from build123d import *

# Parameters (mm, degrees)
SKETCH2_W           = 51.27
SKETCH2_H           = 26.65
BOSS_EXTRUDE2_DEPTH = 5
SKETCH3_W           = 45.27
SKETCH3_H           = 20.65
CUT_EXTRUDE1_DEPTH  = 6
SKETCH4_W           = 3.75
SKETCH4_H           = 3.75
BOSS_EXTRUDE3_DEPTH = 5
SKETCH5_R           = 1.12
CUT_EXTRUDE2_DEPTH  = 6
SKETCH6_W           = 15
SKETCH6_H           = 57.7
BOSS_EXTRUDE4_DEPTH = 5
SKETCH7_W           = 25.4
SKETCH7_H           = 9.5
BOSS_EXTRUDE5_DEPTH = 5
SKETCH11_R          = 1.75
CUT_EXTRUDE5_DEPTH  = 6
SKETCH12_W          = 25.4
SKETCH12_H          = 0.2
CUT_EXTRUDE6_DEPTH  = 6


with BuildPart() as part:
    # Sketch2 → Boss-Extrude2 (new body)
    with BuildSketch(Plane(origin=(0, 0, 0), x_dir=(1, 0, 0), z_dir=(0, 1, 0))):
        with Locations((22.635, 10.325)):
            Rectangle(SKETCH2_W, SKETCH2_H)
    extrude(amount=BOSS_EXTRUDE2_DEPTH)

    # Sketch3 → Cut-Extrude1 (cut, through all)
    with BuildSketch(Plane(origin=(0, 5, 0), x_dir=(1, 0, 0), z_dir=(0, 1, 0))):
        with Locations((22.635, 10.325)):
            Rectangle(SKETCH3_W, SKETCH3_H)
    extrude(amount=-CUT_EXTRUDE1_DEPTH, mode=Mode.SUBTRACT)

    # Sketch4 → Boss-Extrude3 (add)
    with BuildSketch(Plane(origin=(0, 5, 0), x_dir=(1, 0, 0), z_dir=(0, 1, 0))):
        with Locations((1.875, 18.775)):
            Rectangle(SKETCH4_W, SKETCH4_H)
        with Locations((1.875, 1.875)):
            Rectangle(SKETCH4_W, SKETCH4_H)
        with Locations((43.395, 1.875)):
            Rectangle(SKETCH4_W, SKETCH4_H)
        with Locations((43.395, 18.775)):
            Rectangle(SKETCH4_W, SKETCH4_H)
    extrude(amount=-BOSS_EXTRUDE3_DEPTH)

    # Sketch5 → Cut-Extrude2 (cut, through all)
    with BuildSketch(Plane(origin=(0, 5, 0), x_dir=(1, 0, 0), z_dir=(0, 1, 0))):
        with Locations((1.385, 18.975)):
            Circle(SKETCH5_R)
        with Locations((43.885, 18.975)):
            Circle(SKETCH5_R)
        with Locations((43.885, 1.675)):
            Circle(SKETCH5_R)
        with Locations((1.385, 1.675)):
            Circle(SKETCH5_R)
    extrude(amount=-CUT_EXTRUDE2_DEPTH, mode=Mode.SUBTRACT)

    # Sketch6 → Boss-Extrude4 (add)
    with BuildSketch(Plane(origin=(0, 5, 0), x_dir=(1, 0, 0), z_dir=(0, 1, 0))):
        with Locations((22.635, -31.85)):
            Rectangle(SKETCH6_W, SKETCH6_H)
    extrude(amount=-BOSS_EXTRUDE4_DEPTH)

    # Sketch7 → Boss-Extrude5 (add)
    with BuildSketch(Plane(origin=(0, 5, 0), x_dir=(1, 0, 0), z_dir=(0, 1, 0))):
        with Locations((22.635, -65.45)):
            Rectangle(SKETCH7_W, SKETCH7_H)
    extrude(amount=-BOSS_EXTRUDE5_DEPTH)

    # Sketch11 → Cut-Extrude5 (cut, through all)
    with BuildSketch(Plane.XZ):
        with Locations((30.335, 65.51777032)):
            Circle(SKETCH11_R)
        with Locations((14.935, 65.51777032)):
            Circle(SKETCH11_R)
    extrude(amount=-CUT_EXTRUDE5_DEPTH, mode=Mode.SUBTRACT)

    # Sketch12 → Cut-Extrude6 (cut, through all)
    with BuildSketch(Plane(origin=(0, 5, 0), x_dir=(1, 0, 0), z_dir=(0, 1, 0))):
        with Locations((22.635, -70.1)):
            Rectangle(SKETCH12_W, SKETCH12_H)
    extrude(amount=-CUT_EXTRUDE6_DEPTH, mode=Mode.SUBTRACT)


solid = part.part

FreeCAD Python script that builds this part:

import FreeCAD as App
import Part
import Sketcher

doc = App.newDocument("Part")
params = doc.addObject("Spreadsheet::Sheet", "Params")
for row, (alias, value) in enumerate([
    ("sketch1_width", "51.27 mm"),
    ("sketch1_height", "26.65 mm"),
    ("pad1_length", "5 mm"),
    ("sketch2_width", "45.27 mm"),
    ("sketch2_height", "20.65 mm"),
    ("sketch3_width", "3.75 mm"),
    ("pad2_length", "5 mm"),
    ("sketch4_diameter", "2.24 mm"),
    ("sketch5_width", "15 mm"),
    ("sketch5_height", "57.7 mm"),
    ("pad3_length", "5 mm"),
    ("sketch6_width", "25.4 mm"),
    ("sketch6_height", "9.5 mm"),
    ("pad4_length", "5 mm"),
    ("sketch7_diameter", "3.5 mm"),
    ("sketch8_width", "25.4 mm"),
    ("sketch8_height", "0.2 mm"),
], start=1):
    params.set(f"A{row}", alias)
    params.set(f"B{row}", "=" + value)
    params.setAlias(f"B{row}", alias)

body = doc.addObject("PartDesign::Body", "Body")

# Sketch on XZ plane
sketch1 = doc.addObject("Sketcher::SketchObject", "Sketch")
body.addObject(sketch1)
sketch1.AttachmentSupport = (doc.XZ_Plane, [""])
sketch1.MapMode = "FlatFace"
sketch1.addGeometry([
    Part.LineSegment(App.Vector(-3, -23.65, 0), App.Vector(-3, 3, 0)),
    Part.LineSegment(App.Vector(-3, 3, 0), App.Vector(48.27, 3, 0)),
    Part.LineSegment(App.Vector(48.27, 3, 0), App.Vector(48.27, -23.65, 0)),
    Part.LineSegment(App.Vector(48.27, -23.65, 0), App.Vector(-3, -23.65, 0)),
], False)
sketch1.addConstraint([
    Sketcher.Constraint("Coincident", 0, 2, 1, 1),
    Sketcher.Constraint("Coincident", 1, 2, 2, 1),
    Sketcher.Constraint("Coincident", 2, 2, 3, 1),
    Sketcher.Constraint("Coincident", 3, 2, 0, 1),
    Sketcher.Constraint("Vertical", 0),
    Sketcher.Constraint("Horizontal", 1),
    Sketcher.Constraint("Vertical", 2),
    Sketcher.Constraint("Horizontal", 3),
    Sketcher.Constraint("DistanceX", 0, 2, -1, 1, 3.0),
    Sketcher.Constraint("DistanceY", -1, 1, 0, 2, 3.0),
    Sketcher.Constraint("DistanceX", 1, 1, 1, 2, 51.27),
    Sketcher.Constraint("DistanceY", 0, 1, 0, 2, 26.65),
])
sketch1.setExpression("Constraints[10]", "Params.sketch1_width")
sketch1.setExpression("Constraints[11]", "Params.sketch1_height")
pad1 = doc.addObject("PartDesign::Pad", "Pad")
body.addObject(pad1)
pad1.Profile = sketch1
pad1.setExpression("Length", "Params.pad1_length")
pad1.Reversed = True

# Sketch on XZ plane
sketch2 = doc.addObject("Sketcher::SketchObject", "Sketch001")
body.addObject(sketch2)
sketch2.AttachmentSupport = (doc.XZ_Plane, [""])
sketch2.MapMode = "FlatFace"
sketch2.AttachmentOffset = App.Placement(App.Vector(0, 0, -5), App.Rotation())
sketch2.addGeometry([
    Part.LineSegment(App.Vector(0, -20.65, 0), App.Vector(0, 0, 0)),
    Part.LineSegment(App.Vector(0, 0, 0), App.Vector(45.27, 0, 0)),
    Part.LineSegment(App.Vector(45.27, 0, 0), App.Vector(45.27, -20.65, 0)),
    Part.LineSegment(App.Vector(45.27, -20.65, 0), App.Vector(0, -20.65, 0)),
], False)
sketch2.addConstraint([
    Sketcher.Constraint("Coincident", 0, 2, 1, 1),
    Sketcher.Constraint("Coincident", 1, 2, 2, 1),
    Sketcher.Constraint("Coincident", 2, 2, 3, 1),
    Sketcher.Constraint("Coincident", 3, 2, 0, 1),
    Sketcher.Constraint("Vertical", 0),
    Sketcher.Constraint("Horizontal", 1),
    Sketcher.Constraint("Vertical", 2),
    Sketcher.Constraint("Horizontal", 3),
    Sketcher.Constraint("Coincident", 0, 2, -1, 1),
    Sketcher.Constraint("DistanceX", 1, 1, 1, 2, 45.27),
    Sketcher.Constraint("DistanceY", 0, 1, 0, 2, 20.65),
])
sketch2.setExpression("Constraints[9]", "Params.sketch2_width")
sketch2.setExpression("Constraints[10]", "Params.sketch2_height")
pocket1 = doc.addObject("PartDesign::Pocket", "Pocket")
body.addObject(pocket1)
pocket1.Profile = sketch2
pocket1.Type = "ThroughAll"
pocket1.Reversed = True

# Sketch on XZ plane
sketch3 = doc.addObject("Sketcher::SketchObject", "Sketch002")
body.addObject(sketch3)
sketch3.AttachmentSupport = (doc.XZ_Plane, [""])
sketch3.MapMode = "FlatFace"
sketch3.AttachmentOffset = App.Placement(App.Vector(0, 0, -5), App.Rotation())
sketch3.addGeometry([
    Part.LineSegment(App.Vector(0, -20.65, 0), App.Vector(0, -16.9, 0)),  # 0
    Part.LineSegment(App.Vector(0, -16.9, 0), App.Vector(3.75, -16.9, 0)),  # 1
    Part.LineSegment(App.Vector(3.75, -16.9, 0), App.Vector(3.75, -20.65, 0)),  # 2
    Part.LineSegment(App.Vector(3.75, -20.65, 0), App.Vector(0, -20.65, 0)),  # 3
    Part.LineSegment(App.Vector(0, -3.75, 0), App.Vector(0, 0, 0)),  # 4
    Part.LineSegment(App.Vector(0, 0, 0), App.Vector(3.75, 0, 0)),  # 5
    Part.LineSegment(App.Vector(3.75, 0, 0), App.Vector(3.75, -3.75, 0)),  # 6
    Part.LineSegment(App.Vector(3.75, -3.75, 0), App.Vector(0, -3.75, 0)),  # 7
    Part.LineSegment(App.Vector(41.52, -3.75, 0), App.Vector(41.52, 0, 0)),  # 8
    Part.LineSegment(App.Vector(41.52, 0, 0), App.Vector(45.27, 0, 0)),  # 9
    Part.LineSegment(App.Vector(45.27, 0, 0), App.Vector(45.27, -3.75, 0)),  # 10
    Part.LineSegment(App.Vector(45.27, -3.75, 0), App.Vector(41.52, -3.75, 0)),  # 11
    Part.LineSegment(App.Vector(41.52, -20.65, 0), App.Vector(41.52, -16.9, 0)),  # 12
    Part.LineSegment(App.Vector(41.52, -16.9, 0), App.Vector(45.27, -16.9, 0)),  # 13
    Part.LineSegment(App.Vector(45.27, -16.9, 0), App.Vector(45.27, -20.65, 0)),  # 14
    Part.LineSegment(App.Vector(45.27, -20.65, 0), App.Vector(41.52, -20.65, 0)),  # 15
], False)
sketch3.addConstraint([
    Sketcher.Constraint("Coincident", 0, 2, 1, 1),
    Sketcher.Constraint("Coincident", 1, 2, 2, 1),
    Sketcher.Constraint("Coincident", 2, 2, 3, 1),
    Sketcher.Constraint("Coincident", 3, 2, 0, 1),
    Sketcher.Constraint("Coincident", 4, 2, 5, 1),
    Sketcher.Constraint("Coincident", 5, 2, 6, 1),
    Sketcher.Constraint("Coincident", 6, 2, 7, 1),
    Sketcher.Constraint("Coincident", 7, 2, 4, 1),
    Sketcher.Constraint("Coincident", 8, 2, 9, 1),
    Sketcher.Constraint("Coincident", 9, 2, 10, 1),
    Sketcher.Constraint("Coincident", 10, 2, 11, 1),
    Sketcher.Constraint("Coincident", 11, 2, 8, 1),
    Sketcher.Constraint("Coincident", 12, 2, 13, 1),
    Sketcher.Constraint("Coincident", 13, 2, 14, 1),
    Sketcher.Constraint("Coincident", 14, 2, 15, 1),
    Sketcher.Constraint("Coincident", 15, 2, 12, 1),
    Sketcher.Constraint("Vertical", 0),
    Sketcher.Constraint("Horizontal", 1),
    Sketcher.Constraint("Vertical", 2),
    Sketcher.Constraint("Horizontal", 3),
    Sketcher.Constraint("Vertical", 4),
    Sketcher.Constraint("Horizontal", 5),
    Sketcher.Constraint("Vertical", 6),
    Sketcher.Constraint("Horizontal", 7),
    Sketcher.Constraint("Vertical", 8),
    Sketcher.Constraint("Horizontal", 9),
    Sketcher.Constraint("Vertical", 10),
    Sketcher.Constraint("Horizontal", 11),
    Sketcher.Constraint("Vertical", 12),
    Sketcher.Constraint("Horizontal", 13),
    Sketcher.Constraint("Vertical", 14),
    Sketcher.Constraint("Horizontal", 15),
    Sketcher.Constraint("Coincident", 4, 2, -1, 1),
    Sketcher.Constraint("PointOnObject", 0, 2, -2),
    Sketcher.Constraint("PointOnObject", 8, 2, -1),
    Sketcher.Constraint("Horizontal", 7, 2, 10, 2),
    Sketcher.Constraint("Horizontal", 1, 2, 12, 2),
    Sketcher.Constraint("Horizontal", 3, 2, 14, 2),
    Sketcher.Constraint("Vertical", 2, 2, 5, 2),
    Sketcher.Constraint("Vertical", 11, 2, 12, 2),
    Sketcher.Constraint("Vertical", 10, 2, 13, 2),
    Sketcher.Constraint("Equal", 7, 9),
    Sketcher.Constraint("Equal", 15, 0),
    Sketcher.Constraint("Equal", 2, 4),
    Sketcher.Constraint("DistanceX", 1, 1, 1, 2, 3.75),
    Sketcher.Constraint("DistanceY", 0, 2, -1, 1, 16.9),
    Sketcher.Constraint("DistanceX", -1, 1, 8, 2, 41.52),
])
sketch3.setExpression("Constraints[44]", "Params.sketch3_width")
pad2 = doc.addObject("PartDesign::Pad", "Pad001")
body.addObject(pad2)
pad2.Profile = sketch3
pad2.setExpression("Length", "Params.pad2_length")

# Sketch on XZ plane
sketch4 = doc.addObject("Sketcher::SketchObject", "Sketch003")
body.addObject(sketch4)
sketch4.AttachmentSupport = (doc.XZ_Plane, [""])
sketch4.MapMode = "FlatFace"
sketch4.AttachmentOffset = App.Placement(App.Vector(0, 0, -5), App.Rotation())
sketch4.addGeometry([
    Part.Circle(App.Vector(1.385, -18.975, 0), App.Vector(0, 0, 1), 1.12),
    Part.Circle(App.Vector(43.885, -18.975, 0), App.Vector(0, 0, 1), 1.12),
    Part.Circle(App.Vector(43.885, -1.675, 0), App.Vector(0, 0, 1), 1.12),
    Part.Circle(App.Vector(1.385, -1.675, 0), App.Vector(0, 0, 1), 1.12),
], False)
sketch4.addConstraint([
    Sketcher.Constraint("Equal", 0, 1),
    Sketcher.Constraint("Equal", 1, 2),
    Sketcher.Constraint("Equal", 2, 3),
    Sketcher.Constraint("Horizontal", 0, 3, 1, 3),
    Sketcher.Constraint("Horizontal", 2, 3, 3, 3),
    Sketcher.Constraint("Vertical", 1, 3, 2, 3),
    Sketcher.Constraint("Vertical", 0, 3, 3, 3),
    Sketcher.Constraint("Diameter", 0, 2.24),
    Sketcher.Constraint("DistanceX", 0, 3, 1, 3, 42.5),
    Sketcher.Constraint("DistanceY", 1, 3, 2, 3, 17.3),
    Sketcher.Constraint("DistanceX", -1, 1, 0, 3, 1.385),
    Sketcher.Constraint("DistanceY", 0, 3, -1, 1, 18.975),
])
sketch4.setExpression("Constraints[7]", "Params.sketch4_diameter")
pocket2 = doc.addObject("PartDesign::Pocket", "Pocket001")
body.addObject(pocket2)
pocket2.Profile = sketch4
pocket2.Type = "ThroughAll"
pocket2.Reversed = True

# Sketch on XZ plane
sketch5 = doc.addObject("Sketcher::SketchObject", "Sketch004")
body.addObject(sketch5)
sketch5.AttachmentSupport = (doc.XZ_Plane, [""])
sketch5.MapMode = "FlatFace"
sketch5.AttachmentOffset = App.Placement(App.Vector(0, 0, -5), App.Rotation())
sketch5.addGeometry([
    Part.LineSegment(App.Vector(15.135, 3, 0), App.Vector(15.135, 60.7, 0)),
    Part.LineSegment(App.Vector(15.135, 60.7, 0), App.Vector(30.135, 60.7, 0)),
    Part.LineSegment(App.Vector(30.135, 60.7, 0), App.Vector(30.135, 3, 0)),
    Part.LineSegment(App.Vector(30.135, 3, 0), App.Vector(15.135, 3, 0)),
], False)
sketch5.addConstraint([
    Sketcher.Constraint("Coincident", 0, 2, 1, 1),
    Sketcher.Constraint("Coincident", 1, 2, 2, 1),
    Sketcher.Constraint("Coincident", 2, 2, 3, 1),
    Sketcher.Constraint("Coincident", 3, 2, 0, 1),
    Sketcher.Constraint("Vertical", 0),
    Sketcher.Constraint("Horizontal", 1),
    Sketcher.Constraint("Vertical", 2),
    Sketcher.Constraint("Horizontal", 3),
    Sketcher.Constraint("DistanceX", 1, 1, 1, 2, 15.0),
    Sketcher.Constraint("DistanceY", 0, 1, 0, 2, 57.7),
    Sketcher.Constraint("DistanceY", -1, 1, 2, 2, 3.0),
    Sketcher.Constraint("DistanceX", -1, 1, 0, 2, 15.135),
])
sketch5.setExpression("Constraints[8]", "Params.sketch5_width")
sketch5.setExpression("Constraints[9]", "Params.sketch5_height")
pad3 = doc.addObject("PartDesign::Pad", "Pad002")
body.addObject(pad3)
pad3.Profile = sketch5
pad3.setExpression("Length", "Params.pad3_length")

# Sketch on XZ plane
sketch6 = doc.addObject("Sketcher::SketchObject", "Sketch005")
body.addObject(sketch6)
sketch6.AttachmentSupport = (doc.XZ_Plane, [""])
sketch6.MapMode = "FlatFace"
sketch6.AttachmentOffset = App.Placement(App.Vector(0, 0, -5), App.Rotation())
sketch6.addGeometry([
    Part.LineSegment(App.Vector(9.935, 60.7, 0), App.Vector(9.935, 70.2, 0)),
    Part.LineSegment(App.Vector(9.935, 70.2, 0), App.Vector(35.335, 70.2, 0)),
    Part.LineSegment(App.Vector(35.335, 70.2, 0), App.Vector(35.335, 60.7, 0)),
    Part.LineSegment(App.Vector(35.335, 60.7, 0), App.Vector(9.935, 60.7, 0)),
], False)
sketch6.addConstraint([
    Sketcher.Constraint("Coincident", 0, 2, 1, 1),
    Sketcher.Constraint("Coincident", 1, 2, 2, 1),
    Sketcher.Constraint("Coincident", 2, 2, 3, 1),
    Sketcher.Constraint("Coincident", 3, 2, 0, 1),
    Sketcher.Constraint("Vertical", 0),
    Sketcher.Constraint("Horizontal", 1),
    Sketcher.Constraint("Vertical", 2),
    Sketcher.Constraint("Horizontal", 3),
    Sketcher.Constraint("DistanceX", 1, 1, 1, 2, 25.4),
    Sketcher.Constraint("DistanceY", 0, 1, 0, 2, 9.5),
    Sketcher.Constraint("DistanceY", -1, 1, 0, 2, 70.2),
    Sketcher.Constraint("DistanceX", -1, 1, 0, 2, 9.935),
])
sketch6.setExpression("Constraints[8]", "Params.sketch6_width")
sketch6.setExpression("Constraints[9]", "Params.sketch6_height")
pad4 = doc.addObject("PartDesign::Pad", "Pad003")
body.addObject(pad4)
pad4.Profile = sketch6
pad4.setExpression("Length", "Params.pad4_length")

# Sketch on XZ plane
sketch7 = doc.addObject("Sketcher::SketchObject", "Sketch006")
body.addObject(sketch7)
sketch7.AttachmentSupport = (doc.XZ_Plane, [""])
sketch7.MapMode = "FlatFace"
sketch7.addGeometry([
    Part.Circle(App.Vector(30.335, 65.51777, 0), App.Vector(0, 0, 1), 1.75),
    Part.Circle(App.Vector(14.935, 65.51777, 0), App.Vector(0, 0, 1), 1.75),
], False)
sketch7.addConstraint([
    Sketcher.Constraint("Equal", 0, 1),
    Sketcher.Constraint("Horizontal", 0, 3, 1, 3),
    Sketcher.Constraint("Diameter", 0, 3.5),
    Sketcher.Constraint("DistanceX", 1, 3, 0, 3, 15.4),
    Sketcher.Constraint("DistanceX", -1, 1, 0, 3, 30.335),
    Sketcher.Constraint("DistanceY", -1, 1, 0, 3, 65.51777),
])
sketch7.setExpression("Constraints[2]", "Params.sketch7_diameter")
pocket3 = doc.addObject("PartDesign::Pocket", "Pocket002")
body.addObject(pocket3)
pocket3.Profile = sketch7
pocket3.Type = "ThroughAll"

# Sketch on XZ plane
sketch8 = doc.addObject("Sketcher::SketchObject", "Sketch007")
body.addObject(sketch8)
sketch8.AttachmentSupport = (doc.XZ_Plane, [""])
sketch8.MapMode = "FlatFace"
sketch8.AttachmentOffset = App.Placement(App.Vector(0, 0, -5), App.Rotation())
sketch8.addGeometry([
    Part.LineSegment(App.Vector(9.935, 70, 0), App.Vector(9.935, 70.2, 0)),
    Part.LineSegment(App.Vector(9.935, 70.2, 0), App.Vector(35.335, 70.2, 0)),
    Part.LineSegment(App.Vector(35.335, 70.2, 0), App.Vector(35.335, 70, 0)),
    Part.LineSegment(App.Vector(35.335, 70, 0), App.Vector(9.935, 70, 0)),
], False)
sketch8.addConstraint([
    Sketcher.Constraint("Coincident", 0, 2, 1, 1),
    Sketcher.Constraint("Coincident", 1, 2, 2, 1),
    Sketcher.Constraint("Coincident", 2, 2, 3, 1),
    Sketcher.Constraint("Coincident", 3, 2, 0, 1),
    Sketcher.Constraint("Vertical", 0),
    Sketcher.Constraint("Horizontal", 1),
    Sketcher.Constraint("Vertical", 2),
    Sketcher.Constraint("Horizontal", 3),
    Sketcher.Constraint("DistanceX", 1, 1, 1, 2, 25.4),
    Sketcher.Constraint("DistanceY", 0, 1, 0, 2, 0.2),
    Sketcher.Constraint("DistanceY", -1, 1, 2, 2, 70.0),
    Sketcher.Constraint("DistanceX", -1, 1, 0, 2, 9.935),
])
sketch8.setExpression("Constraints[8]", "Params.sketch8_width")
sketch8.setExpression("Constraints[9]", "Params.sketch8_height")
pocket4 = doc.addObject("PartDesign::Pocket", "Pocket003")
body.addObject(pocket4)
pocket4.Profile = sketch8
pocket4.Type = "ThroughAll"
pocket4.Reversed = True

doc.recompute()
